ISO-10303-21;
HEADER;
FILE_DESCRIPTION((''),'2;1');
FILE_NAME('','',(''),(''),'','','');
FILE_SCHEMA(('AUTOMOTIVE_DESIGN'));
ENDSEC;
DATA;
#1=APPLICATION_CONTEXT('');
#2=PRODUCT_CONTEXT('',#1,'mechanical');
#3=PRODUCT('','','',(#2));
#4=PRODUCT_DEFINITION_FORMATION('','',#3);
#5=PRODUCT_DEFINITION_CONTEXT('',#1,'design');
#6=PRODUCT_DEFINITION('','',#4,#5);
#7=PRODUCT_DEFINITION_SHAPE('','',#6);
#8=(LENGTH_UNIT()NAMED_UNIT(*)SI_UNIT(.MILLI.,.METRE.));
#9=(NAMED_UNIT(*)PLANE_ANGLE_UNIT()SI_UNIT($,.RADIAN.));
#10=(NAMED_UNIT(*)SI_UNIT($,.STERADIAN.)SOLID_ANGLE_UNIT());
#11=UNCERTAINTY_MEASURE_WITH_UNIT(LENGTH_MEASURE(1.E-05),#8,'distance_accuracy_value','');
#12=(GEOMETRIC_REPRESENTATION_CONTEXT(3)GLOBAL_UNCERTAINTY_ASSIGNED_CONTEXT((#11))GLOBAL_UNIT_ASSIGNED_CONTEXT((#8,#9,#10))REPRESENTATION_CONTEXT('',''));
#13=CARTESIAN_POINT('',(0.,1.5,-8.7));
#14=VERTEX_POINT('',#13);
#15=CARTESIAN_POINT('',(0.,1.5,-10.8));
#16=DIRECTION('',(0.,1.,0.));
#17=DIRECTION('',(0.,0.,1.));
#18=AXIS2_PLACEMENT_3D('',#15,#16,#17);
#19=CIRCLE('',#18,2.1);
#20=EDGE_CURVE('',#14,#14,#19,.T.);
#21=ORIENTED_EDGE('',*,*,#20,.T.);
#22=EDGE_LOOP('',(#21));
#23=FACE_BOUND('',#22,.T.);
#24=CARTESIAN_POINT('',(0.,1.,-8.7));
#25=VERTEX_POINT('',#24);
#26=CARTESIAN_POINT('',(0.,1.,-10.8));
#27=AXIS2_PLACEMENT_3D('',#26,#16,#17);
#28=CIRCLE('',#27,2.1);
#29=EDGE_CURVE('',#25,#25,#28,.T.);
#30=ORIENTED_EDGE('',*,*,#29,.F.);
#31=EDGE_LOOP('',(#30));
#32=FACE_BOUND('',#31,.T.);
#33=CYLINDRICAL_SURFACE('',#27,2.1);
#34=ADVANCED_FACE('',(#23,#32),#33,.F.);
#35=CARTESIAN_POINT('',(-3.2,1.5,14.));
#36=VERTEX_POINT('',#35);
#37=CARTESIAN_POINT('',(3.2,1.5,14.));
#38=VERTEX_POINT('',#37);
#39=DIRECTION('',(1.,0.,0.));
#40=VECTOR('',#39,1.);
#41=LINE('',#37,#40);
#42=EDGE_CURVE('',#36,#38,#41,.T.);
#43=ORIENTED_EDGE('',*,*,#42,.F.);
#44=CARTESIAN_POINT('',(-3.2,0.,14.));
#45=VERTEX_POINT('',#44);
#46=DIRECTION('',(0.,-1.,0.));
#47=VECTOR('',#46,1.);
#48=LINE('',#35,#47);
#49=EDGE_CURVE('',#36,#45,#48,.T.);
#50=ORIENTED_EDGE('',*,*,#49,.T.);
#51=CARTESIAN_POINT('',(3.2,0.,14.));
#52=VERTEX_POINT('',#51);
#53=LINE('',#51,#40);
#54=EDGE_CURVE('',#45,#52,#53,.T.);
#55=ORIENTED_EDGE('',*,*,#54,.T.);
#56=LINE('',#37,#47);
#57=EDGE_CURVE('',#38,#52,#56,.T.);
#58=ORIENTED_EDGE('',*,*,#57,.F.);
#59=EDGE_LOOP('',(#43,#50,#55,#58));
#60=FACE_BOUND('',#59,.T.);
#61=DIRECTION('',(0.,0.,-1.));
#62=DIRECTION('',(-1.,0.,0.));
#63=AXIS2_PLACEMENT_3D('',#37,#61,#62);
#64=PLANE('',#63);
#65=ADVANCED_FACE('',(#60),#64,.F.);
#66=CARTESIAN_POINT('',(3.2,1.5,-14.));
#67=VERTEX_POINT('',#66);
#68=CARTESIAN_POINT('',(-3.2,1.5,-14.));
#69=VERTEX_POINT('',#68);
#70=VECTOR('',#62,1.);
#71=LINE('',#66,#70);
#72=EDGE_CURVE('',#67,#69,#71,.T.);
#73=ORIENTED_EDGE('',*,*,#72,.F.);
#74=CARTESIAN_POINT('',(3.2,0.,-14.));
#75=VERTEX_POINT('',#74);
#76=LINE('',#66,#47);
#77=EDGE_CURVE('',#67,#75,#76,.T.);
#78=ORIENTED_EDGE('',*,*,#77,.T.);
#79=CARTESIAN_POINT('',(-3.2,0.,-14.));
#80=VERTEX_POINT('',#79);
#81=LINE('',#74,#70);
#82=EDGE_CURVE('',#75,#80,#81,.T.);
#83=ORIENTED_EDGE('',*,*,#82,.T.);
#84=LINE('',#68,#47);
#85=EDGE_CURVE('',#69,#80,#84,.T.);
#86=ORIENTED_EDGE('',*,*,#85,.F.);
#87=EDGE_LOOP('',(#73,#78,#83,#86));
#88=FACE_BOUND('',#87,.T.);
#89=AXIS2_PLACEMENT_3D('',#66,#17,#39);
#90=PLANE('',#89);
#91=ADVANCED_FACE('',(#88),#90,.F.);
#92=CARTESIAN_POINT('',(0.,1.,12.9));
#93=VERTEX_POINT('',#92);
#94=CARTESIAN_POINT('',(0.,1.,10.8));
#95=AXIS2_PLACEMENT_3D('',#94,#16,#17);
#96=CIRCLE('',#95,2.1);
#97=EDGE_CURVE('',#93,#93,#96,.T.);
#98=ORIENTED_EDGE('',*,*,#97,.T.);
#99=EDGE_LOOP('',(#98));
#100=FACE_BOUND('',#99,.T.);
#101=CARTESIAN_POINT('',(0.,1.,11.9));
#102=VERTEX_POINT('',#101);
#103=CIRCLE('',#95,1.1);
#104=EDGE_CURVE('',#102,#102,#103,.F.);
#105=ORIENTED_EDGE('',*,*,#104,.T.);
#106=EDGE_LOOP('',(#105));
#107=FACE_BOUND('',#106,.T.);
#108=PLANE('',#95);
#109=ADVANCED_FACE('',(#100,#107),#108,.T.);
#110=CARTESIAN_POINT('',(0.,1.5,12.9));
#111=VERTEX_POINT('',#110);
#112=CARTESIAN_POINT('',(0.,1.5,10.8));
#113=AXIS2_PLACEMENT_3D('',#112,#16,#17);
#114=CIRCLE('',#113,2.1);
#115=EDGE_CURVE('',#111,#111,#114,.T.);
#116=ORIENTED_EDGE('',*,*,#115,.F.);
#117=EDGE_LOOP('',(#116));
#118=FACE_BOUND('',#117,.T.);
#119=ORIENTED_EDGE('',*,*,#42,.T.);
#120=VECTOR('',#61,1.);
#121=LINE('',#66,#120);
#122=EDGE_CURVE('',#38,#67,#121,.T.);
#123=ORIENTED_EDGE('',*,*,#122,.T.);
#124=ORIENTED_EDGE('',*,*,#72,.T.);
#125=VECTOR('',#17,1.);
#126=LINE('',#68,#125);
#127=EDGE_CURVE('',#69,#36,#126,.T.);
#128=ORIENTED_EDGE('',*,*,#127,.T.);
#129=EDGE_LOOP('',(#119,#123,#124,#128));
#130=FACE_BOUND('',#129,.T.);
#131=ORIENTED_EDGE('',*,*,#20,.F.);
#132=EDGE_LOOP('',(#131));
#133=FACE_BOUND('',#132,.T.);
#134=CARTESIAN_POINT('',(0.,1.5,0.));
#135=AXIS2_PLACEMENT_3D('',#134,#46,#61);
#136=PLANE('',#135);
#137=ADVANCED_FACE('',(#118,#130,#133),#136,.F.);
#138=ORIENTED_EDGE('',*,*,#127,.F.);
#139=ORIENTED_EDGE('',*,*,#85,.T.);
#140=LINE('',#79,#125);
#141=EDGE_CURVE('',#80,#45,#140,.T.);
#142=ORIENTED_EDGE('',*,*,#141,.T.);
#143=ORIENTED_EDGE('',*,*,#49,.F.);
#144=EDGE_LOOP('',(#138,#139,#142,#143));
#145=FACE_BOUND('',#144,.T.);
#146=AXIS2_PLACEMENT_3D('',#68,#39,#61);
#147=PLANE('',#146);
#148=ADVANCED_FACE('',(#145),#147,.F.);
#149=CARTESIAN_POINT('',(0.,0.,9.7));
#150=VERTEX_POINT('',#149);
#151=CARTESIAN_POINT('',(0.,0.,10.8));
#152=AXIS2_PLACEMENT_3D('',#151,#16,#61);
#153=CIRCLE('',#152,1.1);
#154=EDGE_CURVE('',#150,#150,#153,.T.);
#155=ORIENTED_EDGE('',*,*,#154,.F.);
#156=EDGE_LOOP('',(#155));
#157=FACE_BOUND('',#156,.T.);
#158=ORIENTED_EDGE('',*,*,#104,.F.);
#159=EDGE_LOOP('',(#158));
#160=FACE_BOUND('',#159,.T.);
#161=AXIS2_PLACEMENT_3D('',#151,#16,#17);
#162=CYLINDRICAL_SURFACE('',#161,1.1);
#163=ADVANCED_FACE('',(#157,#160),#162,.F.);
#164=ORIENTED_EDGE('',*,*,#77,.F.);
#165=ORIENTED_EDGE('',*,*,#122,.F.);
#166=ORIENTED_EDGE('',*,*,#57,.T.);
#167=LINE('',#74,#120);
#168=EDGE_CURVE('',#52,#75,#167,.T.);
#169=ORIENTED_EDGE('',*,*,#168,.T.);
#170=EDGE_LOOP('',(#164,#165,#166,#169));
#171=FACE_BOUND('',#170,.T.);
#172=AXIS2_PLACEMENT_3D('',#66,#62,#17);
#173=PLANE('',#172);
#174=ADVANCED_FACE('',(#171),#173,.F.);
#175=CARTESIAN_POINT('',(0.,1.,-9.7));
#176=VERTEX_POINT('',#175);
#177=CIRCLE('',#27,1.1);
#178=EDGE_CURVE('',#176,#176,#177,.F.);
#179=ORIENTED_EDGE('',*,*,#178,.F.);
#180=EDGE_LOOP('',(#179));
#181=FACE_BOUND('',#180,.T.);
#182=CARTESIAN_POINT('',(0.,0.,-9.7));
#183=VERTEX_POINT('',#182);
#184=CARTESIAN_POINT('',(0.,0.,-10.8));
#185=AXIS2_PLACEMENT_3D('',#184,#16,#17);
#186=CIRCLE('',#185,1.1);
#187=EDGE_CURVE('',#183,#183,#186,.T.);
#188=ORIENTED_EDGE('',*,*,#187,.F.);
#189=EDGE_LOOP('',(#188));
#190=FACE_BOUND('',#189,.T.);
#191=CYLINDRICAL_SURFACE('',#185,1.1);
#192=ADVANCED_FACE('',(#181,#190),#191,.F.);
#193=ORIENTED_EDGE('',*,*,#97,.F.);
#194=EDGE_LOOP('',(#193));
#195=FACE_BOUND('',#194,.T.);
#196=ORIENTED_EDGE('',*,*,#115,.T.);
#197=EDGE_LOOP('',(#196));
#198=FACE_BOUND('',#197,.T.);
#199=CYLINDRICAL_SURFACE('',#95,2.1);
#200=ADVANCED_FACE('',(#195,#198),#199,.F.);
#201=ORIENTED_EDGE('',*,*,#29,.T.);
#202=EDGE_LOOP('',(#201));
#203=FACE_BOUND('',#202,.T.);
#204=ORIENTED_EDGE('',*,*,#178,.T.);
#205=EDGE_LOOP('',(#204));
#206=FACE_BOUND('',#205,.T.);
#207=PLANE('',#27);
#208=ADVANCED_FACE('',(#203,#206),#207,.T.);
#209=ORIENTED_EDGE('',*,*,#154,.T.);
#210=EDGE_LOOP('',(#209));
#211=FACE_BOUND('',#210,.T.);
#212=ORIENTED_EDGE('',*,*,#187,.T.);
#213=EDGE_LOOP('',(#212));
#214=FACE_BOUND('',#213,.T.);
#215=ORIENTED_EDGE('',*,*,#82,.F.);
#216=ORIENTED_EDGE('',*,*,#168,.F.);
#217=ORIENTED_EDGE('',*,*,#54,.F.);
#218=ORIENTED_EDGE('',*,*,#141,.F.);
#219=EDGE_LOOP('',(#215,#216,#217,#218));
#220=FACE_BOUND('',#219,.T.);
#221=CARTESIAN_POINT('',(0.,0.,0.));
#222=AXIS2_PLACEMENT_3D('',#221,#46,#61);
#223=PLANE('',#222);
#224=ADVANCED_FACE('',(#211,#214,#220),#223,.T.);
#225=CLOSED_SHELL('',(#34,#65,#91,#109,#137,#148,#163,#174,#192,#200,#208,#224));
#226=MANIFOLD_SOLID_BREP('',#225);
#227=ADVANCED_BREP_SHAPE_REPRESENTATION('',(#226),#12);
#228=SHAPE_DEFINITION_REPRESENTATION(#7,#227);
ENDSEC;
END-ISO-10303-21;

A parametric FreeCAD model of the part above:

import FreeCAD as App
import Part
import Sketcher

V = App.Vector
Q = App.Units.Quantity

doc = App.newDocument("Part")
body = doc.addObject("PartDesign::Body", "Body")

# Sketch on XZ plane
sketch1 = doc.addObject("Sketcher::SketchObject", "Sketch")
body.addObject(sketch1)
sketch1.AttachmentSupport = (doc.XZ_Plane, [""])
sketch1.MapMode = "FlatFace"
sketch1.addGeometry([
    Part.LineSegment(V(-3, -14, 0), V(-3, 14, 0)),
    Part.LineSegment(V(-3, 14, 0), V(3, 14, 0)),
    Part.LineSegment(V(3, 14, 0), V(3, -14, 0)),
    Part.LineSegment(V(3, -14, 0), V(-3, -14, 0)),
], False)
sketch1.addConstraint([
    Sketcher.Constraint("Coincident", 0, 2, 1, 1),
    Sketcher.Constraint("Coincident", 1, 2, 2, 1),
    Sketcher.Constraint("Coincident", 2, 2, 3, 1),
    Sketcher.Constraint("Coincident", 3, 2, 0, 1),
    Sketcher.Constraint("Vertical", 0),
    Sketcher.Constraint("Horizontal", 1),
    Sketcher.Constraint("Vertical", 2),
    Sketcher.Constraint("Horizontal", 3),
    Sketcher.Constraint("Symmetric", 0, 2, 2, 2, -1, 1),
    Sketcher.Constraint("DistanceY", 0, 1, 0, 2, Q("28 mm")),
    Sketcher.Constraint("DistanceX", 1, 1, 1, 2, Q("6.4 mm")),
])
pad1 = doc.addObject("PartDesign::Pad", "Pad")
body.addObject(pad1)
pad1.Profile = sketch1
pad1.Length = 1.5
pad1.Reversed = True

# Sketch on XZ plane
sketch2 = doc.addObject("Sketcher::SketchObject", "Sketch001")
body.addObject(sketch2)
sketch2.AttachmentSupport = (doc.XZ_Plane, [""])
sketch2.MapMode = "FlatFace"
sketch2.AttachmentOffset = App.Placement(V(0, 0, -1.5), App.Rotation())
sketch2.addGeometry([
    Part.Circle(V(0, -10.8, 0), V(0, 0, 1), 1.1),
    Part.Circle(V(0, 10.8, 0), V(0, 0, 1), 1.1),
], False)
sketch2.addConstraint([
    Sketcher.Constraint("Equal", 0, 1),
    Sketcher.Constraint("Symmetric", 0, 3, 1, 3, -1, 1),
    Sketcher.Constraint("PointOnObject", 0, 3, -2),
    Sketcher.Constraint("Diameter", 0, Q("2.2 mm")),
    Sketcher.Constraint("DistanceY", 0, 3, -1, 1, Q("10.8 mm")),
])
pocket1 = doc.addObject("PartDesign::Pocket", "Pocket")
body.addObject(pocket1)
pocket1.Profile = sketch2
pocket1.Type = "ThroughAll"
pocket1.Reversed = True

# Sketch on XZ plane
sketch3 = doc.addObject("Sketcher::SketchObject", "Sketch002")
body.addObject(sketch3)
sketch3.AttachmentSupport = (doc.XZ_Plane, [""])
sketch3.MapMode = "FlatFace"
sketch3.AttachmentOffset = App.Placement(V(0, 0, -1.5), App.Rotation())
sketch3.addGeometry([
    Part.Circle(V(0, -10.8, 0), V(0, 0, 1), 2.1),
    Part.Circle(V(0, 10.8, 0), V(0, 0, 1), 2.1),
], False)
sketch3.addConstraint([
    Sketcher.Constraint("Equal", 0, 1),
    Sketcher.Constraint("Symmetric", 0, 3, 1, 3, -1, 1),
    Sketcher.Constraint("PointOnObject", 0, 3, -2),
    Sketcher.Constraint("Diameter", 0, Q("4.2 mm")),
    Sketcher.Constraint("DistanceY", 0, 3, -1, 1, Q("10.8 mm")),
])
pocket2 = doc.addObject("PartDesign::Pocket", "Pocket001")
body.addObject(pocket2)
pocket2.Profile = sketch3
pocket2.Length = 0.5
pocket2.Reversed = True

doc.recompute()
